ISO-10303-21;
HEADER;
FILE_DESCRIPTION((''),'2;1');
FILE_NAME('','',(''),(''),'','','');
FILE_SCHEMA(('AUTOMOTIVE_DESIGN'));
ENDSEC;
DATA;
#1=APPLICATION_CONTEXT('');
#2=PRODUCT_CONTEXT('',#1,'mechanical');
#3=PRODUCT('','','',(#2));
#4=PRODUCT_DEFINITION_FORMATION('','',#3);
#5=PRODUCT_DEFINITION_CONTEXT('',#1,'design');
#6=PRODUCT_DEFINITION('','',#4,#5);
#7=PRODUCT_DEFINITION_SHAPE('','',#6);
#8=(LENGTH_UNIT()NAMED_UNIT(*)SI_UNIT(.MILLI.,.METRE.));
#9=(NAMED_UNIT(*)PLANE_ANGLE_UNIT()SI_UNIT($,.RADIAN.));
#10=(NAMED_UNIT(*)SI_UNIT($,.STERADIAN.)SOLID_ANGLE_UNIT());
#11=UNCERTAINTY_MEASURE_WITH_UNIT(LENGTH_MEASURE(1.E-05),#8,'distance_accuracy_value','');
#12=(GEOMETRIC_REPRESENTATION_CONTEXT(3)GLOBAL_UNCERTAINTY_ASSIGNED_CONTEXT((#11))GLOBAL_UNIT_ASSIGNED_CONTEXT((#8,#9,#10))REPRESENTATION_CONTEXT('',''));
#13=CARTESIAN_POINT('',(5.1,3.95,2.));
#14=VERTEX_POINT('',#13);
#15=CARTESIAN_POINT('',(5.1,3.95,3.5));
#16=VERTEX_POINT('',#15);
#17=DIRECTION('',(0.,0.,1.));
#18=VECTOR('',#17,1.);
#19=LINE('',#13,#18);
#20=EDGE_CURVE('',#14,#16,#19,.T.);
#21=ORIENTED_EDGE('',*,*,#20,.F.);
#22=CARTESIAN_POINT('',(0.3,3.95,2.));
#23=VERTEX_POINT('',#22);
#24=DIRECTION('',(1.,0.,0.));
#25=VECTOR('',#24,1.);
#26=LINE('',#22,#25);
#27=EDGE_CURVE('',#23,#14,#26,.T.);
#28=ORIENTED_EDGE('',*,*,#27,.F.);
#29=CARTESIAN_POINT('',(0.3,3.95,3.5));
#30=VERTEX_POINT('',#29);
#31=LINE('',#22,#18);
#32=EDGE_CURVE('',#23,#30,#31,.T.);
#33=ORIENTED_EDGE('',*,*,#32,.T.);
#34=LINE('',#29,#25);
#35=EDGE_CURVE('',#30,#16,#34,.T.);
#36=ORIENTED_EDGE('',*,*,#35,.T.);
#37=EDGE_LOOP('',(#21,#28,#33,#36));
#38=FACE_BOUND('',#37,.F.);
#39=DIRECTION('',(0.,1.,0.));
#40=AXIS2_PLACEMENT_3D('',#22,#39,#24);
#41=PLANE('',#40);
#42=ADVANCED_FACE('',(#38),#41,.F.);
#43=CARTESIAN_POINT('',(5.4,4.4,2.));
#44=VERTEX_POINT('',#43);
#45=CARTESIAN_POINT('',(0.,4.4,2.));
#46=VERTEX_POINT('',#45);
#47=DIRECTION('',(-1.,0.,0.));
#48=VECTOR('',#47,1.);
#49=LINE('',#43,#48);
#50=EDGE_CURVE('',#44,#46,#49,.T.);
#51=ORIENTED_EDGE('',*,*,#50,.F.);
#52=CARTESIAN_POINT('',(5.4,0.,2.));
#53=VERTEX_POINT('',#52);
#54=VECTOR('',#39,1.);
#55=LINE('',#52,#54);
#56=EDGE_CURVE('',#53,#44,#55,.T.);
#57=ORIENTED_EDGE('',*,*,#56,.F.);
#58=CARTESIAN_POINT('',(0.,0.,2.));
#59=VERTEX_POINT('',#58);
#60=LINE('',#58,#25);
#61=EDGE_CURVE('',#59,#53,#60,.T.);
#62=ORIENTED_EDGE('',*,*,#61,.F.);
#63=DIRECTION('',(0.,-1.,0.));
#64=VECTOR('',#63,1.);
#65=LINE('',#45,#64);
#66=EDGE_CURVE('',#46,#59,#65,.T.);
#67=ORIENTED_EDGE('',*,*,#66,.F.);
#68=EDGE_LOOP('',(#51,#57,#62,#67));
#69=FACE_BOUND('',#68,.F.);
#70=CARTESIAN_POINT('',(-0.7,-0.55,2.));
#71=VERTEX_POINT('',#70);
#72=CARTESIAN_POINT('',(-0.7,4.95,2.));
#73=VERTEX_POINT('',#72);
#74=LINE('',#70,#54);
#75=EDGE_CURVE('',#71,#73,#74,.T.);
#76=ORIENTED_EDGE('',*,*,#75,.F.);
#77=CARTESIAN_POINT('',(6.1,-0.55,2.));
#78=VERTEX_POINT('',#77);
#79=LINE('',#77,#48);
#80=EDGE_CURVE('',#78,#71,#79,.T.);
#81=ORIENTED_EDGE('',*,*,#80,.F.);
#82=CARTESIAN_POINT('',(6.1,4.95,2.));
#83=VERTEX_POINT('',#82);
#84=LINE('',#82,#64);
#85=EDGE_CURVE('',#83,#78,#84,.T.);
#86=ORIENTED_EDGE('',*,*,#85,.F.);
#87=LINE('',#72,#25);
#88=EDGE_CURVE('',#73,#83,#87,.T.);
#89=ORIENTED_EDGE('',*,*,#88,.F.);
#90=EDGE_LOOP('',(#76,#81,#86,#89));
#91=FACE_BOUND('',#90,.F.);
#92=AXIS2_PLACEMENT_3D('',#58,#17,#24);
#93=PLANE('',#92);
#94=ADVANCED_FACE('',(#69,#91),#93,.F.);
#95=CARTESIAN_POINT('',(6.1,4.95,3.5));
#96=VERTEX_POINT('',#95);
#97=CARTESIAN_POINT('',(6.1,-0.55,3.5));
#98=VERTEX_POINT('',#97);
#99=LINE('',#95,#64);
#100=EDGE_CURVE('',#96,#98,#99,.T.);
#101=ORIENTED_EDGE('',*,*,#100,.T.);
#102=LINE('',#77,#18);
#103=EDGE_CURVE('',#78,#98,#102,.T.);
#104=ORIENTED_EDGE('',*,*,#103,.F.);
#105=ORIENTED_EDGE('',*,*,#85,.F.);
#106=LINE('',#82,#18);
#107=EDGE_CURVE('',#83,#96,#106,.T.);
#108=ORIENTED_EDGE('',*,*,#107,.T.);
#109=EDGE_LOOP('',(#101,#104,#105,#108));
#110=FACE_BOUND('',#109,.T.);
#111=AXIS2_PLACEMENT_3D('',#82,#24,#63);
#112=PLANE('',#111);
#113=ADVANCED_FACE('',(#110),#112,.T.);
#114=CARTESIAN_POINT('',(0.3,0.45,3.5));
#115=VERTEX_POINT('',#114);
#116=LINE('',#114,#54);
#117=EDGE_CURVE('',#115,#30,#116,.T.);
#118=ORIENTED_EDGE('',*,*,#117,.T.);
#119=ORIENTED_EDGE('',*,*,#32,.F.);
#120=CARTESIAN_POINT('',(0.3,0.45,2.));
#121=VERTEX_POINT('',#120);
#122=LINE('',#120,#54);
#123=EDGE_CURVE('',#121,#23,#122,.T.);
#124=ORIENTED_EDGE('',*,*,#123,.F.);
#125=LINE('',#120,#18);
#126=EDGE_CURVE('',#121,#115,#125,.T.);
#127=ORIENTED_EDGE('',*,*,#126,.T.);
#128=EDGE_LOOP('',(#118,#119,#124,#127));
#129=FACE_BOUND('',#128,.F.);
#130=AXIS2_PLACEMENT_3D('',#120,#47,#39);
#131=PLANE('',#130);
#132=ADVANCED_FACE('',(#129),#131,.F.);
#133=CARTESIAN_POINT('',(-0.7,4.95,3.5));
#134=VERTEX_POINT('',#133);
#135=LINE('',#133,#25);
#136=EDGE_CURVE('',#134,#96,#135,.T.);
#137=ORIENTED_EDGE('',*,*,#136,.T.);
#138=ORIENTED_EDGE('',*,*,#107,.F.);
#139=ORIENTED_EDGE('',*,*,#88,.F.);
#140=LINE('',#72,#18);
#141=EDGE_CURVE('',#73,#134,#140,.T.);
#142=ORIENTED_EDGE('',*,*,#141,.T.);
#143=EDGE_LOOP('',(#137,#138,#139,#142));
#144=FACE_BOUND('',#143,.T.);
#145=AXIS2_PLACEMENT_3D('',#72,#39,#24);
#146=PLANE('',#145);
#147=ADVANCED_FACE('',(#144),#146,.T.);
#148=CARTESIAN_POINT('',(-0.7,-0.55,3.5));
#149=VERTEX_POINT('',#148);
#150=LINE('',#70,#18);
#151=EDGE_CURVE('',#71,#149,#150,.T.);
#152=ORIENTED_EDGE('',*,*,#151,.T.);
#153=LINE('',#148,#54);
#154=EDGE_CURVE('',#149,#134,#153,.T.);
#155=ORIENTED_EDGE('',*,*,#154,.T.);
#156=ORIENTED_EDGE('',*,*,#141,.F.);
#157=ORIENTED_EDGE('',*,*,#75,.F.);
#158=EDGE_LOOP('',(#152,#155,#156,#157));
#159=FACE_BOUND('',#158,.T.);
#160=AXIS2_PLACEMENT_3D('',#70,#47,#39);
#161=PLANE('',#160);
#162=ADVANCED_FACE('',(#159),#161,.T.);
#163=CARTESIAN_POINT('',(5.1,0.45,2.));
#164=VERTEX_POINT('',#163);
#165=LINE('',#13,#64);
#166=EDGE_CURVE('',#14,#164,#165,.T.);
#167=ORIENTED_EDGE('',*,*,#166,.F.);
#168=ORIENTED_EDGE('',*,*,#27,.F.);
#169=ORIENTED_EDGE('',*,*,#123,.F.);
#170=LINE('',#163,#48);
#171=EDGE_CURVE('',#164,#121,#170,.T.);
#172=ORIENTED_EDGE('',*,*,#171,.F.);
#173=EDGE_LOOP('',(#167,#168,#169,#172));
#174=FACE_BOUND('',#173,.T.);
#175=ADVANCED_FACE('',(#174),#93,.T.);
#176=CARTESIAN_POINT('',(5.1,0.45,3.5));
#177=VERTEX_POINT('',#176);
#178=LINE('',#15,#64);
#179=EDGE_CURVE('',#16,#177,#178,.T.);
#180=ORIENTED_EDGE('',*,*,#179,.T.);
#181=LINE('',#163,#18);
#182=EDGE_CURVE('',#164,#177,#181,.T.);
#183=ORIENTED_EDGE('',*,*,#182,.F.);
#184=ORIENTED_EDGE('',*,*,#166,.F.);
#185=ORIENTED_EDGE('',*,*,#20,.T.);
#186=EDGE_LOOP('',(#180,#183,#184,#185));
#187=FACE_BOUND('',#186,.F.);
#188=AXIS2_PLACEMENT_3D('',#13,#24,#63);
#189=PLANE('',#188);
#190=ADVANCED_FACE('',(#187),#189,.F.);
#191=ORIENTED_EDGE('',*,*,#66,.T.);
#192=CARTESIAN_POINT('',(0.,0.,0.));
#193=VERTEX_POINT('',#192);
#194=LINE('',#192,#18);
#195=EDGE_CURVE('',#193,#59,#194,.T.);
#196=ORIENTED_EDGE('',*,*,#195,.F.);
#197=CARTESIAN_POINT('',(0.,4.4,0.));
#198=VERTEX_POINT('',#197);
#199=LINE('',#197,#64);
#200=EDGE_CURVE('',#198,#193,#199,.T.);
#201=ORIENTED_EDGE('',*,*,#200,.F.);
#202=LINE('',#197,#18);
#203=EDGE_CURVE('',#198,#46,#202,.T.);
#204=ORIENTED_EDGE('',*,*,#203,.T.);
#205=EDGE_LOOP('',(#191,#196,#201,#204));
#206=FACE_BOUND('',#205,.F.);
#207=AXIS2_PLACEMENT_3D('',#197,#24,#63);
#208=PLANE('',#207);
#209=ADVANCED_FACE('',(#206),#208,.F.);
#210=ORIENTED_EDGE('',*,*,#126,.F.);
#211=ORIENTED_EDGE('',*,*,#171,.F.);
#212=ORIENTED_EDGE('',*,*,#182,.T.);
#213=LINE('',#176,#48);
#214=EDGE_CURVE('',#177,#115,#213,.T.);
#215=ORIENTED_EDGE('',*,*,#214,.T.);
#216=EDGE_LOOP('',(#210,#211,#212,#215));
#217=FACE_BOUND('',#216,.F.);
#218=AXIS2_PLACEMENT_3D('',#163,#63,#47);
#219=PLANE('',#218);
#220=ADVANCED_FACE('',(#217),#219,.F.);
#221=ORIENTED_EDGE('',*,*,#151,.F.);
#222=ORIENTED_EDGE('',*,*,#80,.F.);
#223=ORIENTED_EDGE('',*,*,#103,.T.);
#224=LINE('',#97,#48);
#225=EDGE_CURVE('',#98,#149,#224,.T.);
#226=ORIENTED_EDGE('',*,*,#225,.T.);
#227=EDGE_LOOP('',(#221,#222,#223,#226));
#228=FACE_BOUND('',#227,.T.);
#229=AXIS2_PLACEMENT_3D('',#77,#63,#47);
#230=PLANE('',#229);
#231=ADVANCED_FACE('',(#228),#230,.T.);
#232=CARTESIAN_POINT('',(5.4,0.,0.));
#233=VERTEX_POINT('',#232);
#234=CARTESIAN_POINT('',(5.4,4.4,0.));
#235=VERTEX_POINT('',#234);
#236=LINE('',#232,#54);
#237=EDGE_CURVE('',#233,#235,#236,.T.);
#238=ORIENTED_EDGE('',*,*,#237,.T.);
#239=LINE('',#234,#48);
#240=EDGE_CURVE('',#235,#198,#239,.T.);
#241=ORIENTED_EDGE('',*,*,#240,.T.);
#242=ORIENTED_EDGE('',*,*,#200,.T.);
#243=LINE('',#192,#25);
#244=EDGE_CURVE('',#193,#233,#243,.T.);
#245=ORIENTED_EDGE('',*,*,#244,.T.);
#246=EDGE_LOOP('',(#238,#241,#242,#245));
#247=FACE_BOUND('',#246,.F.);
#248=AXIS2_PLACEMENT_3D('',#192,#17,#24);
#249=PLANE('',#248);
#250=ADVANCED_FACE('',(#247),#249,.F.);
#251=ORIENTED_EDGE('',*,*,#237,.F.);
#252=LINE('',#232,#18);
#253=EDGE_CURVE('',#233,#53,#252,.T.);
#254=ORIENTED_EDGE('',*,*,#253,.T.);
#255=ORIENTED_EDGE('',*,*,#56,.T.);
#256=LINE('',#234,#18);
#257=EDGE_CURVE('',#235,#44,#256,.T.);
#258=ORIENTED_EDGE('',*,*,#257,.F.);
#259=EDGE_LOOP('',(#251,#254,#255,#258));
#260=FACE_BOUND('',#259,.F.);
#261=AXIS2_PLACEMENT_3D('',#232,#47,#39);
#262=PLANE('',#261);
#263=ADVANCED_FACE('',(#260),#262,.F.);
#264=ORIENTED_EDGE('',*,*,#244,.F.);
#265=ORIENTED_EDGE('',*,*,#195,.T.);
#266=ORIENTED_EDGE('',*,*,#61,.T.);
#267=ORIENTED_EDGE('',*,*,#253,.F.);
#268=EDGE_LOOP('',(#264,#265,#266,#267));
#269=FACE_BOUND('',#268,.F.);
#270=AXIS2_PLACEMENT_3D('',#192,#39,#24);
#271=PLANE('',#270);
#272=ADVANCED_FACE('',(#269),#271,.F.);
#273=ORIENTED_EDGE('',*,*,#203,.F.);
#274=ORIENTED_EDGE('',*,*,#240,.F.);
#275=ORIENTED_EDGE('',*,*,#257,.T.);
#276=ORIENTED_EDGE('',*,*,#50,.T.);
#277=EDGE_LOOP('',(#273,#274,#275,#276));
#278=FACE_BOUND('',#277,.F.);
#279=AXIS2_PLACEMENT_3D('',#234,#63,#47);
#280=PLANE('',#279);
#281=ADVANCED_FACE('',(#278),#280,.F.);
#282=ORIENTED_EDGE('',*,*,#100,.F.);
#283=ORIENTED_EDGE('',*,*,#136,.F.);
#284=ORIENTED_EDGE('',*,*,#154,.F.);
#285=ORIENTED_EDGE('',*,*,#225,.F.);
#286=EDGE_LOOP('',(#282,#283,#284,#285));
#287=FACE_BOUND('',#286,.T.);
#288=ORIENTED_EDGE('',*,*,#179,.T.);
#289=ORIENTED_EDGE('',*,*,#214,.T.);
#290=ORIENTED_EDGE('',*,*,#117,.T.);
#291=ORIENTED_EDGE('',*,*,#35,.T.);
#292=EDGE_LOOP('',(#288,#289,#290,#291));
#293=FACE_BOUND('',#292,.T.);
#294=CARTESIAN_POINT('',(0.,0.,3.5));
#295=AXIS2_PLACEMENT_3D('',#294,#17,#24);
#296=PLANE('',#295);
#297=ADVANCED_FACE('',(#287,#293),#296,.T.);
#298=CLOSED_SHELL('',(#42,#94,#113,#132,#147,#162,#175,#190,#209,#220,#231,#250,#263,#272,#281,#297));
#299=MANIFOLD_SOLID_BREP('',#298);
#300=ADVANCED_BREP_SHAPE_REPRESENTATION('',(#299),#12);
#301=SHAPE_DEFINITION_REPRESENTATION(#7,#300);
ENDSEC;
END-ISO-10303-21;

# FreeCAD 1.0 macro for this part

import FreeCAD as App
import Part
import Sketcher
from FreeCAD import Vector
Q = App.Units.Quantity


def add_polygon(sketch, points):
    """Adds a closed chain of lines whose ends are joined by coincident constraints."""
    first, n = sketch.GeometryCount, len(points)
    for a, b in zip(points, points[1:] + points[:1]):
        sketch.addGeometry(Part.LineSegment(App.Vector(*a, 0), App.Vector(*b, 0)), False)
    for i in range(n):
        sketch.addConstraint(Sketcher.Constraint("Coincident", first + i, 2, first + (i + 1) % n, 1))

doc = App.newDocument("Part")
params = doc.addObject("Spreadsheet::Sheet", "Params")
for row, (alias, value) in enumerate([
    ("sketch1_width", "5.4 mm"),
    ("sketch1_height", "4.4 mm"),
    ("pad1_length", "2 mm"),
    ("sketch2_width", "4.8 mm"),
    ("sketch2_height", "3.5 mm"),
    ("pad2_length", "1.5 mm"),
], start=1):
    params.set(f"A{row}", alias)
    params.set(f"B{row}", "=" + value)
    params.setAlias(f"B{row}", alias)

body = doc.addObject("PartDesign::Body", "Body")

# Sketch on XY plane
sketch1 = body.newObject("Sketcher::SketchObject", "Sketch")
sketch1.AttachmentSupport = (doc.getObject("XY_Plane"), [""])
sketch1.MapMode = "FlatFace"
add_polygon(sketch1, [(0, 4.4), (0, 0), (5.4, 0), (5.4, 4.4)])  # lines 0-3
sketch1.addConstraint([
    Sketcher.Constraint("Vertical", 0),
    Sketcher.Constraint("Horizontal", 1),
    Sketcher.Constraint("Vertical", 2),
    Sketcher.Constraint("Horizontal", 3),
    Sketcher.Constraint("Coincident", 0, 2, -1, 1),
    Sketcher.Constraint("DistanceX", 1, 1, 1, 2, Q("5.4 mm")),
    Sketcher.Constraint("DistanceY", 0, 2, 0, 1, Q("4.4 mm")),
])
sketch1.setExpression("Constraints[9]", "Params.sketch1_width")
sketch1.setExpression("Constraints[10]", "Params.sketch1_height")
pad1 = body.newObject("PartDesign::Pad", "Pad")
pad1.Profile = sketch1
pad1.setExpression("Length", "Params.pad1_length")

# Sketch on XY plane
sketch2 = body.newObject("Sketcher::SketchObject", "Sketch001")
sketch2.AttachmentSupport = (doc.getObject("XY_Plane"), [""])
sketch2.MapMode = "FlatFace"
sketch2.AttachmentOffset = App.Placement(Vector(0, 0, 2), App.Rotation())
add_polygon(sketch2, [(6.1, 4.95), (-0.7, 4.95), (-0.7, -0.55), (6.1, -0.55)])  # lines 0-3
add_polygon(sketch2, [(0.3, 0.45), (0.3, 3.95), (5.1, 3.95), (5.1, 0.45)])  # lines 4-7
sketch2.addConstraint([
    Sketcher.Constraint("Horizontal", 0),
    Sketcher.Constraint("Vertical", 1),
    Sketcher.Constraint("Horizontal", 2),
    Sketcher.Constraint("Vertical", 3),
    Sketcher.Constraint("Vertical", 4),
    Sketcher.Constraint("Horizontal", 5),
    Sketcher.Constraint("Vertical", 6),
    Sketcher.Constraint("Horizontal", 7),
    Sketcher.Constraint("DistanceX", 5, 1, 5, 2, Q("4.8 mm")),
    Sketcher.Constraint("DistanceY", 4, 1, 4, 2, Q("3.5 mm")),
    Sketcher.Constraint("DistanceX", 0, 2, 4, 2, Q("1 mm")),
    Sketcher.Constraint("DistanceY", 4, 2, 0, 2, Q("1 mm")),
    Sketcher.Constraint("DistanceX", 5, 2, 3, 2, Q("1 mm")),
    Sketcher.Constraint("DistanceY", 2, 2, 6, 2, Q("1 mm")),
    Sketcher.Constraint("DistanceX", -1, 1, 4, 2, Q("0.3 mm")),
    Sketcher.Constraint("DistanceY", -1, 1, 6, 2, Q("0.45 mm")),
])
sketch2.setExpression("Constraints[16]", "Params.sketch2_width")
sketch2.setExpression("Constraints[17]", "Params.sketch2_height")
pad2 = body.newObject("PartDesign::Pad", "Pad001")
pad2.Profile = sketch2
pad2.setExpression("Length", "Params.pad2_length")

doc.recompute()
